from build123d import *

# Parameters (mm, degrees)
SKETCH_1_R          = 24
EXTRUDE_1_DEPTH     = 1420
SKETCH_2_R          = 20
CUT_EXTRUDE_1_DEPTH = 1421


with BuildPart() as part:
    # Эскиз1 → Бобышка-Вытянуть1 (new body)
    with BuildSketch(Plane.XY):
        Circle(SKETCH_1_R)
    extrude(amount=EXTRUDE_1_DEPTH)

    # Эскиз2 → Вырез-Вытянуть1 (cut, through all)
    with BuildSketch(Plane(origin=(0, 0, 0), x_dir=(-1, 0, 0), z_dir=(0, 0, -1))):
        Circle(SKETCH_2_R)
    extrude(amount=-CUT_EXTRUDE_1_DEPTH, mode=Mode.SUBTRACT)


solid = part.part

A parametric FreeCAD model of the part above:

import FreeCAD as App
import Part
import Sketcher

doc = App.newDocument("Part")
body = doc.addObject("PartDesign::Body", "Body")

# Sketch on XY plane
sketch1 = body.newObject("Sketcher::SketchObject", "Sketch")
sketch1.AttachmentSupport = (doc.getObject("XY_Plane"), [""])
sketch1.MapMode = "FlatFace"
sketch1.addGeometry(Part.Circle(App.Vector(0, 0, 0), App.Vector(0, 0, 1), 24), False)
sketch1.addConstraint([
    Sketcher.Constraint("Coincident", 0, 3, -1, 1),
    Sketcher.Constraint("Diameter", 0, 48.0),
])
pad1 = body.newObject("PartDesign::Pad", "Pad")
pad1.Profile = sketch1
pad1.Length = 1420

# Sketch on XY plane
sketch2 = body.newObject("Sketcher::SketchObject", "Sketch001")
sketch2.AttachmentSupport = (doc.getObject("XY_Plane"), [""])
sketch2.MapMode = "FlatFace"
sketch2.addGeometry(Part.Circle(App.Vector(0, 0, 0), App.Vector(0, 0, 1), 20), False)
sketch2.addConstraint([
    Sketcher.Constraint("Coincident", 0, 3, -1, 1),
    Sketcher.Constraint("Diameter", 0, 40.0),
])
pocket1 = body.newObject("PartDesign::Pocket", "Pocket")
pocket1.Profile = sketch2
pocket1.Type = "ThroughAll"
pocket1.Reversed = True

doc.recompute()
